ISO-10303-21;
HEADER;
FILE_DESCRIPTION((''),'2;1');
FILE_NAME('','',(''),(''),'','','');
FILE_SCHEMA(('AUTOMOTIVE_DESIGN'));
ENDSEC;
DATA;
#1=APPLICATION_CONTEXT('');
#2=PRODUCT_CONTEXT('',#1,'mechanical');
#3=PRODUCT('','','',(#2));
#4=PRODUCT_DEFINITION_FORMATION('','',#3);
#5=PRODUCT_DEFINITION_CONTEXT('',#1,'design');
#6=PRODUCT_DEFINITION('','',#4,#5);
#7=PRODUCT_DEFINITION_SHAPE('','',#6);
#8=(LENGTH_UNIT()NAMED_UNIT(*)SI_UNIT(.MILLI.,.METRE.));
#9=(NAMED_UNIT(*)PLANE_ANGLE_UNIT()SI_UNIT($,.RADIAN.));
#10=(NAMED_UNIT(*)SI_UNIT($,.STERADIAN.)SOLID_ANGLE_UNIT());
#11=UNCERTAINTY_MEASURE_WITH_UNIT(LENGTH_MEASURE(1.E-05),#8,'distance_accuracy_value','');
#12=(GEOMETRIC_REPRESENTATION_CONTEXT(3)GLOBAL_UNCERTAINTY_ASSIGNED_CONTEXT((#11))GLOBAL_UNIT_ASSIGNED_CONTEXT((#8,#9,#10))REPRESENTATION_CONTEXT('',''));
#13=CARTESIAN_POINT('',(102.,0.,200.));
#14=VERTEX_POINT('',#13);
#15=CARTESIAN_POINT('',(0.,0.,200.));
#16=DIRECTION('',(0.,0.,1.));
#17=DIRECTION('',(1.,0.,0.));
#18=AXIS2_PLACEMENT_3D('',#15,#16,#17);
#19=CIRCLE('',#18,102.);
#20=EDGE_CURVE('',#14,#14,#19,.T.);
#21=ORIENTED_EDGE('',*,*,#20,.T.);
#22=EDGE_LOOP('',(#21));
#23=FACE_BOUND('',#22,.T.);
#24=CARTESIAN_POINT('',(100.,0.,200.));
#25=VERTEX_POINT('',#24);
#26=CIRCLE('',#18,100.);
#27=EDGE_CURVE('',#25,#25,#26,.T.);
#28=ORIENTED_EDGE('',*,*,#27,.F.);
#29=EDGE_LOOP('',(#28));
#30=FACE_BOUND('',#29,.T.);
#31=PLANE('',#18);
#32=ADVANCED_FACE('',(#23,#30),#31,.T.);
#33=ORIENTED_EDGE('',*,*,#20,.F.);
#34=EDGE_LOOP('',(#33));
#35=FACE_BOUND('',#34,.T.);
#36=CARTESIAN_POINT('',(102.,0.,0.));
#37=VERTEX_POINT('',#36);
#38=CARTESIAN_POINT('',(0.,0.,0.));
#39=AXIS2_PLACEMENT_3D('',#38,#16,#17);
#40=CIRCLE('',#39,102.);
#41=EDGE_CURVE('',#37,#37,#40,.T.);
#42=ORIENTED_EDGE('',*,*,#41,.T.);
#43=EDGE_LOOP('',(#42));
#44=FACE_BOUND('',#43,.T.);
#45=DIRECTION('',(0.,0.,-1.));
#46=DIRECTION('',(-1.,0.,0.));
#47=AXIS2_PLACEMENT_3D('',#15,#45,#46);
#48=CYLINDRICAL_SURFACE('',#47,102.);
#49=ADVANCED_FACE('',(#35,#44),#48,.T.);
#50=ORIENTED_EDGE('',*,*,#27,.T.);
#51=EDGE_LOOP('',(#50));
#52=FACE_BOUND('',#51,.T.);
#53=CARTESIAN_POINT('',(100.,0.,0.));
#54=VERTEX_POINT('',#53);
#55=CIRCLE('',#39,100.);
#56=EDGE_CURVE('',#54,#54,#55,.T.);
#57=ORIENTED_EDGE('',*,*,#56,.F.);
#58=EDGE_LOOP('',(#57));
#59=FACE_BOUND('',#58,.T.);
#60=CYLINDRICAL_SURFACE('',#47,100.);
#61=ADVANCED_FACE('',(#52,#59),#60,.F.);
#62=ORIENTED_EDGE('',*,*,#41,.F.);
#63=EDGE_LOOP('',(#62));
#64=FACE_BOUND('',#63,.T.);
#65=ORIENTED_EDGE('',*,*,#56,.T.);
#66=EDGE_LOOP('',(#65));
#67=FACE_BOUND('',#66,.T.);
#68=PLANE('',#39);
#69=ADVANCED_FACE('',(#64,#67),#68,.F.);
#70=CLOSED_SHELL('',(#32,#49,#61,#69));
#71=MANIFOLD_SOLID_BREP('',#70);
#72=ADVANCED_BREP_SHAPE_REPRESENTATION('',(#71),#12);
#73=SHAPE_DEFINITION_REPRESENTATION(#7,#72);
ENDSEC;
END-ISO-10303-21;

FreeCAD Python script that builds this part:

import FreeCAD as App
import Part
import Sketcher

V = App.Vector

doc = App.newDocument("Part")
params = doc.addObject("Spreadsheet::Sheet", "Params")
for row, (alias, value) in enumerate([
    ("sketch1_diameter", "204 mm"),
    ("sketch1_diameter2", "200 mm"),
    ("pad1_length", "200 mm"),
], start=1):
    params.set(f"A{row}", alias)
    params.set(f"B{row}", "=" + value)
    params.setAlias(f"B{row}", alias)

body = doc.addObject("PartDesign::Body", "Body")

sketch1 = body.newObject("Sketcher::SketchObject", "Sketch")
sketch1.AttachmentSupport = (doc.getObject("XY_Plane"), [""])
sketch1.MapMode = "FlatFace"
sketch1.addGeometry([
    Part.Circle(V(0, 0, 0), V(0, 0, 1), 102),
    Part.Circle(V(0, 0, 0), V(0, 0, 1), 100),
], False)
sketch1.addConstraint([
    Sketcher.Constraint("Coincident", 0, 3, -1, 1),
    Sketcher.Constraint("Coincident", 1, 3, -1, 1),
    Sketcher.Constraint("Diameter", 0, 204.0),
    Sketcher.Constraint("Diameter", 1, 200.0),
])
sketch1.setExpression("Constraints[2]", "Params.sketch1_diameter")
sketch1.setExpression("Constraints[3]", "Params.sketch1_diameter2")
pad1 = body.newObject("PartDesign::Pad", "Pad")
pad1.Profile = sketch1
pad1.setExpression("Length", "Params.pad1_length")

doc.recompute()
